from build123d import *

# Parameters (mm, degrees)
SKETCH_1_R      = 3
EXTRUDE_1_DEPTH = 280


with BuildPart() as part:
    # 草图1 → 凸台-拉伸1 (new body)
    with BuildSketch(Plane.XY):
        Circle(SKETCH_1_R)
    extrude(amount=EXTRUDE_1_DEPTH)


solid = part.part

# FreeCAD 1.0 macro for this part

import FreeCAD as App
import Part
import Sketcher
Q = App.Units.Quantity

doc = App.newDocument("Part")
body = doc.addObject("PartDesign::Body", "Body")

sketch1 = body.newObject("Sketcher::SketchObject", "Sketch")
sketch1.AttachmentSupport = (doc.getObject("XY_Plane"), [""])
sketch1.MapMode = "FlatFace"
sketch1.addGeometry(Part.Circle(App.Vector(0, 0, 0), App.Vector(0, 0, 1), 3), False)
sketch1.addConstraint(Sketcher.Constraint("Coincident", 0, 3, -1, 1))
sketch1.addConstraint(Sketcher.Constraint("Diameter", 0, Q("6 mm")))
pad1 = body.newObject("PartDesign::Pad", "Pad")
pad1.Profile = sketch1
pad1.Length = 280

doc.recompute()
